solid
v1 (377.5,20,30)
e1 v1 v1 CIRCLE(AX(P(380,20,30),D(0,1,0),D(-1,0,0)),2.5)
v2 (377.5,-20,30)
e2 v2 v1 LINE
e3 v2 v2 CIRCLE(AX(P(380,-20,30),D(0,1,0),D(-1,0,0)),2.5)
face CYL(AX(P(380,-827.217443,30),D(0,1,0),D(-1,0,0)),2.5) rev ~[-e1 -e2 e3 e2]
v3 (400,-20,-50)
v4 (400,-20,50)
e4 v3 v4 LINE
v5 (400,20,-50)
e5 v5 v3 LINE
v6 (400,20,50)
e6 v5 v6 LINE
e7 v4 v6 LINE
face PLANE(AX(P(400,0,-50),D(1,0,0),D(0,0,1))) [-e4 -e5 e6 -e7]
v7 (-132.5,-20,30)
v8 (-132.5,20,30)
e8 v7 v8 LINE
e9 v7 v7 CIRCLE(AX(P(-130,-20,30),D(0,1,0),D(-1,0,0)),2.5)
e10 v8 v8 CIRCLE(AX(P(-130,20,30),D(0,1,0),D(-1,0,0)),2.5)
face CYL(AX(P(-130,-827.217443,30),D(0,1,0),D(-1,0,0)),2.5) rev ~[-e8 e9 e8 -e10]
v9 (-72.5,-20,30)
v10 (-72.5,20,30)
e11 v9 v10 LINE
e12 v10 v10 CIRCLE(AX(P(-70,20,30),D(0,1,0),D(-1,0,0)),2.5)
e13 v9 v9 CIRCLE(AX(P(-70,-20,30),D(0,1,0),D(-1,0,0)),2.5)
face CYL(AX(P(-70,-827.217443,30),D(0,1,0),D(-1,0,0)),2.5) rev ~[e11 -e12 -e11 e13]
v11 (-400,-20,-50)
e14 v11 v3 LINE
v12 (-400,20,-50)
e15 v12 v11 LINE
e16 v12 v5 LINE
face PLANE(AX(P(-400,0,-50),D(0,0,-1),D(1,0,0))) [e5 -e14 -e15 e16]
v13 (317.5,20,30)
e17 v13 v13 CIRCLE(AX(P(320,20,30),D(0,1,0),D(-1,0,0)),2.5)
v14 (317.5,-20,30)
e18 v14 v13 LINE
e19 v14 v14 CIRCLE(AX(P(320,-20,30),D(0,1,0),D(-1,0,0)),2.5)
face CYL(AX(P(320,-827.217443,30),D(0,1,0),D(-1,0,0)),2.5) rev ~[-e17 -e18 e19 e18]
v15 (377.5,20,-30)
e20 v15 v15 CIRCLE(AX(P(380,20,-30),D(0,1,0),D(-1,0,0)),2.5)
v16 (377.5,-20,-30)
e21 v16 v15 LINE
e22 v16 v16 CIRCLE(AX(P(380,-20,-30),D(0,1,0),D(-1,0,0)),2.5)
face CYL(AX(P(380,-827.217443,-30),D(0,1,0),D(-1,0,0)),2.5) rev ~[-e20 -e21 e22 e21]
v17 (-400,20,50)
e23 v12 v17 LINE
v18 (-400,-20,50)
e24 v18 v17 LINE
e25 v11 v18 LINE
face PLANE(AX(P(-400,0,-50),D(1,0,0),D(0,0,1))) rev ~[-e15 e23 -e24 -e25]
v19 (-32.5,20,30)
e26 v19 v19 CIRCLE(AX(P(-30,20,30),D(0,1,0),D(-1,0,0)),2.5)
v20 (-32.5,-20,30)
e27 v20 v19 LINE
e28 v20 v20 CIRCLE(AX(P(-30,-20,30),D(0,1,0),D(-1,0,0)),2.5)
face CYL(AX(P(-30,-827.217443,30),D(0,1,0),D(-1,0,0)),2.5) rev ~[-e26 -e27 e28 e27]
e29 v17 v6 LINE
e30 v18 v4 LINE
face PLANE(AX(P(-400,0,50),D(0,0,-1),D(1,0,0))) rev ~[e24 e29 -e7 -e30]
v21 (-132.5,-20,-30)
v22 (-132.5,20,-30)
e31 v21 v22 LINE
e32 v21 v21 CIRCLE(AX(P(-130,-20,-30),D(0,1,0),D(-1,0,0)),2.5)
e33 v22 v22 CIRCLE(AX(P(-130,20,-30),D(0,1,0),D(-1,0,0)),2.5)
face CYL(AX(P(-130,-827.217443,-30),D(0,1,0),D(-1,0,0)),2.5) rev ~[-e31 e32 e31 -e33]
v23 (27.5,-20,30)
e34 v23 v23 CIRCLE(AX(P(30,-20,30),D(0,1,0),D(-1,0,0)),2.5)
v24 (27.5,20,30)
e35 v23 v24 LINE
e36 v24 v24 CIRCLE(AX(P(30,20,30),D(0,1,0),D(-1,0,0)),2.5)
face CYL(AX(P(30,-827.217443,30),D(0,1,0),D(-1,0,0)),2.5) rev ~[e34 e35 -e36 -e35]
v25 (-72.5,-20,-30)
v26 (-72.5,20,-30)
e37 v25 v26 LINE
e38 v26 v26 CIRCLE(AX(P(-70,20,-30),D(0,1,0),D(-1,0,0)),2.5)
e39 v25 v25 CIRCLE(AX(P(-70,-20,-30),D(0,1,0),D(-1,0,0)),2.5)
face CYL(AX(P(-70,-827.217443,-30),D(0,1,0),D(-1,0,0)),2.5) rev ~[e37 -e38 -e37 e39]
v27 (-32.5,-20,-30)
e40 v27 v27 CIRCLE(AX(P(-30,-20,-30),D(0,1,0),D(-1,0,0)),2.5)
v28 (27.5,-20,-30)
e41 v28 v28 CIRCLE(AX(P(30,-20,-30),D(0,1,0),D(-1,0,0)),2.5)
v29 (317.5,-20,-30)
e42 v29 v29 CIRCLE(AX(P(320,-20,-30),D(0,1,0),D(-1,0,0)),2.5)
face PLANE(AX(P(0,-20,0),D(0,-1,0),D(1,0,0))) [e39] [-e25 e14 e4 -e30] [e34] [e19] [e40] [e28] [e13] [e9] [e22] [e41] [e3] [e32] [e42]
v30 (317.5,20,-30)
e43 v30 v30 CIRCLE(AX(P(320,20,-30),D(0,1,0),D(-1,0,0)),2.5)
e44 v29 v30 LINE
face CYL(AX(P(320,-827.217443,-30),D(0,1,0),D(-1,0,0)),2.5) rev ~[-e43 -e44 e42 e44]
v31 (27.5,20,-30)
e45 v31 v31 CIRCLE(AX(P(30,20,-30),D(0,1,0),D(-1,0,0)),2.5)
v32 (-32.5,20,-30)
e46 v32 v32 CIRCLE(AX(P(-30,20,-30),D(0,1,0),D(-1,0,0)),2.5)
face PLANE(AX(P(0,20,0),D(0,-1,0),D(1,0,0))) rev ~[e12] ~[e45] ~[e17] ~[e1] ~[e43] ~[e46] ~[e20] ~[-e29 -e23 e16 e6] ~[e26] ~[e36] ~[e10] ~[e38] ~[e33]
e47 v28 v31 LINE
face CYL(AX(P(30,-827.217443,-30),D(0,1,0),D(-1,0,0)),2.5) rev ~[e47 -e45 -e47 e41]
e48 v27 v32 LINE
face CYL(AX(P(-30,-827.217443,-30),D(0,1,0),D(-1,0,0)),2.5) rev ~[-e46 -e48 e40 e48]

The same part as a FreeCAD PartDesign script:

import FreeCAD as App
import Part
import Sketcher

V = App.Vector
Q = App.Units.Quantity

doc = App.newDocument("Part")
params = doc.addObject("Spreadsheet::Sheet", "Params")
for row, (alias, value) in enumerate([
    ("sketch1_width", "800 mm"),
    ("sketch1_height", "100 mm"),
    ("pad1_length", "40 mm"),
    ("sketch2_diameter", "5 mm"),
    ("hole_diameter", "5 mm"),
], start=1):
    params.set(f"A{row}", alias)
    params.set(f"B{row}", "=" + value)
    params.setAlias(f"B{row}", alias)

body = doc.addObject("PartDesign::Body", "Body")

sketch1 = body.newObject("Sketcher::SketchObject", "Sketch")
sketch1.AttachmentSupport = (doc.getObject("XZ_Plane"), [""])
sketch1.MapMode = "FlatFace"
sketch1.addGeometry([
    Part.LineSegment(V(-400, 50, 0), V(-400, -50, 0)),
    Part.LineSegment(V(-400, -50, 0), V(400, -50, 0)),
    Part.LineSegment(V(400, -50, 0), V(400, 50, 0)),
    Part.LineSegment(V(400, 50, 0), V(-400, 50, 0)),
], False)
sketch1.addConstraint([
    Sketcher.Constraint("Coincident", 0, 2, 1, 1),
    Sketcher.Constraint("Coincident", 1, 2, 2, 1),
    Sketcher.Constraint("Coincident", 2, 2, 3, 1),
    Sketcher.Constraint("Coincident", 3, 2, 0, 1),
    Sketcher.Constraint("Vertical", 0),
    Sketcher.Constraint("Horizontal", 1),
    Sketcher.Constraint("Vertical", 2),
    Sketcher.Constraint("Horizontal", 3),
    Sketcher.Constraint("Symmetric", 0, 2, 2, 2, -1, 1),
    Sketcher.Constraint("DistanceX", 1, 1, 1, 2, Q("800 mm")),
    Sketcher.Constraint("DistanceY", 0, 2, 0, 1, Q("100 mm")),
])
sketch1.setExpression("Constraints[9]", "Params.sketch1_width")
sketch1.setExpression("Constraints[10]", "Params.sketch1_height")
pad1 = body.newObject("PartDesign::Pad", "Pad")
pad1.Profile = sketch1
pad1.setExpression("Length", "Params.pad1_length")
pad1.Midplane = True

sketch2 = body.newObject("Sketcher::SketchObject", "Sketch001")
sketch2.AttachmentSupport = (doc.getObject("XZ_Plane"), [""])
sketch2.MapMode = "FlatFace"
sketch2.AttachmentOffset = App.Placement(V(0, 0, 20), App.Rotation())
sketch2.addGeometry([
    Part.Circle(V(320, 30, 0), V(0, 0, 1), 2.5),
    Part.Circle(V(380, 30, 0), V(0, 0, 1), 2.5),
    Part.Circle(V(320, -30, 0), V(0, 0, 1), 2.5),
    Part.Circle(V(380, -30, 0), V(0, 0, 1), 2.5),
    Part.Circle(V(-130, 30, 0), V(0, 0, 1), 2.5),
    Part.Circle(V(-70, 30, 0), V(0, 0, 1), 2.5),
    Part.Circle(V(-130, -30, 0), V(0, 0, 1), 2.5),
    Part.Circle(V(-70, -30, 0), V(0, 0, 1), 2.5),
    Part.Circle(V(-30, 30, 0), V(0, 0, 1), 2.5),
    Part.Circle(V(30, 30, 0), V(0, 0, 1), 2.5),
    Part.Circle(V(-30, -30, 0), V(0, 0, 1), 2.5),
    Part.Circle(V(30, -30, 0), V(0, 0, 1), 2.5),
], False)
sketch2.addConstraint([
    Sketcher.Constraint("Equal", 0, 1),
    Sketcher.Constraint("Equal", 1, 2),
    Sketcher.Constraint("Equal", 2, 3),
    Sketcher.Constraint("Equal", 3, 4),
    Sketcher.Constraint("Equal", 4, 5),
    Sketcher.Constraint("Equal", 5, 6),
    Sketcher.Constraint("Equal", 6, 7),
    Sketcher.Constraint("Equal", 7, 8),
    Sketcher.Constraint("Equal", 8, 9),
    Sketcher.Constraint("Equal", 9, 10),
    Sketcher.Constraint("Equal", 10, 11),
    Sketcher.Constraint("Symmetric", 9, 3, 10, 3, -1, 1),
    Sketcher.Constraint("Symmetric", 8, 3, 11, 3, -1, 1),
    Sketcher.Constraint("Symmetric", 8, 3, 9, 3, -2),
    Sketcher.Constraint("Symmetric", 0, 3, 2, 3, -1),
    Sketcher.Constraint("Symmetric", 1, 3, 3, 3, -1),
    Sketcher.Constraint("Symmetric", 4, 3, 6, 3, -1),
    Sketcher.Constraint("Symmetric", 5, 3, 7, 3, -1),
    Sketcher.Constraint("Horizontal", 0, 3, 1, 3),
    Sketcher.Constraint("Horizontal", 1, 3, 4, 3),
    Sketcher.Constraint("Horizontal", 4, 3, 5, 3),
    Sketcher.Constraint("Horizontal", 5, 3, 8, 3),
    Sketcher.Constraint("Diameter", 0, Q("5 mm")),
    Sketcher.Constraint("DistanceX", -1, 1, 0, 3, Q("320 mm")),
    Sketcher.Constraint("DistanceY", -1, 1, 0, 3, Q("30 mm")),
    Sketcher.Constraint("DistanceX", -1, 1, 1, 3, Q("380 mm")),
    Sketcher.Constraint("DistanceX", 4, 3, -1, 1, Q("130 mm")),
    Sketcher.Constraint("DistanceX", 5, 3, -1, 1, Q("70 mm")),
    Sketcher.Constraint("DistanceX", 8, 3, -1, 1, Q("30 mm")),
])
sketch2.setExpression("Constraints[22]", "Params.sketch2_diameter")
doc.recompute()
hole = body.newObject("PartDesign::Hole", "Hole")
hole.Profile = sketch2
hole.ThreadType = "None"
hole.setExpression("Diameter", "Params.hole_diameter")
hole.DepthType = "ThroughAll"

doc.recompute()
